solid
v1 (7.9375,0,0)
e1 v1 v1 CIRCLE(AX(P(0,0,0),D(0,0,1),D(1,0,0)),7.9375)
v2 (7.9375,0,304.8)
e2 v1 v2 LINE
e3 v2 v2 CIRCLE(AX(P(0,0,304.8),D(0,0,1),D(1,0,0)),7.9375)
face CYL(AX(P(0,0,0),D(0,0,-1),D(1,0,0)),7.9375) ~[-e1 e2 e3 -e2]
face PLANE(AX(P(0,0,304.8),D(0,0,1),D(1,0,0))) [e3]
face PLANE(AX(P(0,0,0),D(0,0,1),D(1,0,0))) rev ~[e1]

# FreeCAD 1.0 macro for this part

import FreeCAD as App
import Part
import Sketcher
from FreeCAD import Vector
Q = App.Units.Quantity

doc = App.newDocument("Part")
body = doc.addObject("PartDesign::Body", "Body")

# Sketch on XY plane
sketch1 = doc.addObject("Sketcher::SketchObject", "Sketch")
body.addObject(sketch1)
sketch1.AttachmentSupport = (doc.XY_Plane, [""])
sketch1.MapMode = "FlatFace"
sketch1.addGeometry(Part.Circle(Vector(0, 0, 0), Vector(0, 0, 1), 8), False)
sketch1.addConstraint([
    Sketcher.Constraint("Coincident", 0, 3, -1, 1),
    Sketcher.Constraint("Diameter", 0, Q("0.625 in")),
])
pad1 = doc.addObject("PartDesign::Pad", "Pad")
body.addObject(pad1)
pad1.Profile = sketch1
pad1.Length = Q("12 in")

doc.recompute()
